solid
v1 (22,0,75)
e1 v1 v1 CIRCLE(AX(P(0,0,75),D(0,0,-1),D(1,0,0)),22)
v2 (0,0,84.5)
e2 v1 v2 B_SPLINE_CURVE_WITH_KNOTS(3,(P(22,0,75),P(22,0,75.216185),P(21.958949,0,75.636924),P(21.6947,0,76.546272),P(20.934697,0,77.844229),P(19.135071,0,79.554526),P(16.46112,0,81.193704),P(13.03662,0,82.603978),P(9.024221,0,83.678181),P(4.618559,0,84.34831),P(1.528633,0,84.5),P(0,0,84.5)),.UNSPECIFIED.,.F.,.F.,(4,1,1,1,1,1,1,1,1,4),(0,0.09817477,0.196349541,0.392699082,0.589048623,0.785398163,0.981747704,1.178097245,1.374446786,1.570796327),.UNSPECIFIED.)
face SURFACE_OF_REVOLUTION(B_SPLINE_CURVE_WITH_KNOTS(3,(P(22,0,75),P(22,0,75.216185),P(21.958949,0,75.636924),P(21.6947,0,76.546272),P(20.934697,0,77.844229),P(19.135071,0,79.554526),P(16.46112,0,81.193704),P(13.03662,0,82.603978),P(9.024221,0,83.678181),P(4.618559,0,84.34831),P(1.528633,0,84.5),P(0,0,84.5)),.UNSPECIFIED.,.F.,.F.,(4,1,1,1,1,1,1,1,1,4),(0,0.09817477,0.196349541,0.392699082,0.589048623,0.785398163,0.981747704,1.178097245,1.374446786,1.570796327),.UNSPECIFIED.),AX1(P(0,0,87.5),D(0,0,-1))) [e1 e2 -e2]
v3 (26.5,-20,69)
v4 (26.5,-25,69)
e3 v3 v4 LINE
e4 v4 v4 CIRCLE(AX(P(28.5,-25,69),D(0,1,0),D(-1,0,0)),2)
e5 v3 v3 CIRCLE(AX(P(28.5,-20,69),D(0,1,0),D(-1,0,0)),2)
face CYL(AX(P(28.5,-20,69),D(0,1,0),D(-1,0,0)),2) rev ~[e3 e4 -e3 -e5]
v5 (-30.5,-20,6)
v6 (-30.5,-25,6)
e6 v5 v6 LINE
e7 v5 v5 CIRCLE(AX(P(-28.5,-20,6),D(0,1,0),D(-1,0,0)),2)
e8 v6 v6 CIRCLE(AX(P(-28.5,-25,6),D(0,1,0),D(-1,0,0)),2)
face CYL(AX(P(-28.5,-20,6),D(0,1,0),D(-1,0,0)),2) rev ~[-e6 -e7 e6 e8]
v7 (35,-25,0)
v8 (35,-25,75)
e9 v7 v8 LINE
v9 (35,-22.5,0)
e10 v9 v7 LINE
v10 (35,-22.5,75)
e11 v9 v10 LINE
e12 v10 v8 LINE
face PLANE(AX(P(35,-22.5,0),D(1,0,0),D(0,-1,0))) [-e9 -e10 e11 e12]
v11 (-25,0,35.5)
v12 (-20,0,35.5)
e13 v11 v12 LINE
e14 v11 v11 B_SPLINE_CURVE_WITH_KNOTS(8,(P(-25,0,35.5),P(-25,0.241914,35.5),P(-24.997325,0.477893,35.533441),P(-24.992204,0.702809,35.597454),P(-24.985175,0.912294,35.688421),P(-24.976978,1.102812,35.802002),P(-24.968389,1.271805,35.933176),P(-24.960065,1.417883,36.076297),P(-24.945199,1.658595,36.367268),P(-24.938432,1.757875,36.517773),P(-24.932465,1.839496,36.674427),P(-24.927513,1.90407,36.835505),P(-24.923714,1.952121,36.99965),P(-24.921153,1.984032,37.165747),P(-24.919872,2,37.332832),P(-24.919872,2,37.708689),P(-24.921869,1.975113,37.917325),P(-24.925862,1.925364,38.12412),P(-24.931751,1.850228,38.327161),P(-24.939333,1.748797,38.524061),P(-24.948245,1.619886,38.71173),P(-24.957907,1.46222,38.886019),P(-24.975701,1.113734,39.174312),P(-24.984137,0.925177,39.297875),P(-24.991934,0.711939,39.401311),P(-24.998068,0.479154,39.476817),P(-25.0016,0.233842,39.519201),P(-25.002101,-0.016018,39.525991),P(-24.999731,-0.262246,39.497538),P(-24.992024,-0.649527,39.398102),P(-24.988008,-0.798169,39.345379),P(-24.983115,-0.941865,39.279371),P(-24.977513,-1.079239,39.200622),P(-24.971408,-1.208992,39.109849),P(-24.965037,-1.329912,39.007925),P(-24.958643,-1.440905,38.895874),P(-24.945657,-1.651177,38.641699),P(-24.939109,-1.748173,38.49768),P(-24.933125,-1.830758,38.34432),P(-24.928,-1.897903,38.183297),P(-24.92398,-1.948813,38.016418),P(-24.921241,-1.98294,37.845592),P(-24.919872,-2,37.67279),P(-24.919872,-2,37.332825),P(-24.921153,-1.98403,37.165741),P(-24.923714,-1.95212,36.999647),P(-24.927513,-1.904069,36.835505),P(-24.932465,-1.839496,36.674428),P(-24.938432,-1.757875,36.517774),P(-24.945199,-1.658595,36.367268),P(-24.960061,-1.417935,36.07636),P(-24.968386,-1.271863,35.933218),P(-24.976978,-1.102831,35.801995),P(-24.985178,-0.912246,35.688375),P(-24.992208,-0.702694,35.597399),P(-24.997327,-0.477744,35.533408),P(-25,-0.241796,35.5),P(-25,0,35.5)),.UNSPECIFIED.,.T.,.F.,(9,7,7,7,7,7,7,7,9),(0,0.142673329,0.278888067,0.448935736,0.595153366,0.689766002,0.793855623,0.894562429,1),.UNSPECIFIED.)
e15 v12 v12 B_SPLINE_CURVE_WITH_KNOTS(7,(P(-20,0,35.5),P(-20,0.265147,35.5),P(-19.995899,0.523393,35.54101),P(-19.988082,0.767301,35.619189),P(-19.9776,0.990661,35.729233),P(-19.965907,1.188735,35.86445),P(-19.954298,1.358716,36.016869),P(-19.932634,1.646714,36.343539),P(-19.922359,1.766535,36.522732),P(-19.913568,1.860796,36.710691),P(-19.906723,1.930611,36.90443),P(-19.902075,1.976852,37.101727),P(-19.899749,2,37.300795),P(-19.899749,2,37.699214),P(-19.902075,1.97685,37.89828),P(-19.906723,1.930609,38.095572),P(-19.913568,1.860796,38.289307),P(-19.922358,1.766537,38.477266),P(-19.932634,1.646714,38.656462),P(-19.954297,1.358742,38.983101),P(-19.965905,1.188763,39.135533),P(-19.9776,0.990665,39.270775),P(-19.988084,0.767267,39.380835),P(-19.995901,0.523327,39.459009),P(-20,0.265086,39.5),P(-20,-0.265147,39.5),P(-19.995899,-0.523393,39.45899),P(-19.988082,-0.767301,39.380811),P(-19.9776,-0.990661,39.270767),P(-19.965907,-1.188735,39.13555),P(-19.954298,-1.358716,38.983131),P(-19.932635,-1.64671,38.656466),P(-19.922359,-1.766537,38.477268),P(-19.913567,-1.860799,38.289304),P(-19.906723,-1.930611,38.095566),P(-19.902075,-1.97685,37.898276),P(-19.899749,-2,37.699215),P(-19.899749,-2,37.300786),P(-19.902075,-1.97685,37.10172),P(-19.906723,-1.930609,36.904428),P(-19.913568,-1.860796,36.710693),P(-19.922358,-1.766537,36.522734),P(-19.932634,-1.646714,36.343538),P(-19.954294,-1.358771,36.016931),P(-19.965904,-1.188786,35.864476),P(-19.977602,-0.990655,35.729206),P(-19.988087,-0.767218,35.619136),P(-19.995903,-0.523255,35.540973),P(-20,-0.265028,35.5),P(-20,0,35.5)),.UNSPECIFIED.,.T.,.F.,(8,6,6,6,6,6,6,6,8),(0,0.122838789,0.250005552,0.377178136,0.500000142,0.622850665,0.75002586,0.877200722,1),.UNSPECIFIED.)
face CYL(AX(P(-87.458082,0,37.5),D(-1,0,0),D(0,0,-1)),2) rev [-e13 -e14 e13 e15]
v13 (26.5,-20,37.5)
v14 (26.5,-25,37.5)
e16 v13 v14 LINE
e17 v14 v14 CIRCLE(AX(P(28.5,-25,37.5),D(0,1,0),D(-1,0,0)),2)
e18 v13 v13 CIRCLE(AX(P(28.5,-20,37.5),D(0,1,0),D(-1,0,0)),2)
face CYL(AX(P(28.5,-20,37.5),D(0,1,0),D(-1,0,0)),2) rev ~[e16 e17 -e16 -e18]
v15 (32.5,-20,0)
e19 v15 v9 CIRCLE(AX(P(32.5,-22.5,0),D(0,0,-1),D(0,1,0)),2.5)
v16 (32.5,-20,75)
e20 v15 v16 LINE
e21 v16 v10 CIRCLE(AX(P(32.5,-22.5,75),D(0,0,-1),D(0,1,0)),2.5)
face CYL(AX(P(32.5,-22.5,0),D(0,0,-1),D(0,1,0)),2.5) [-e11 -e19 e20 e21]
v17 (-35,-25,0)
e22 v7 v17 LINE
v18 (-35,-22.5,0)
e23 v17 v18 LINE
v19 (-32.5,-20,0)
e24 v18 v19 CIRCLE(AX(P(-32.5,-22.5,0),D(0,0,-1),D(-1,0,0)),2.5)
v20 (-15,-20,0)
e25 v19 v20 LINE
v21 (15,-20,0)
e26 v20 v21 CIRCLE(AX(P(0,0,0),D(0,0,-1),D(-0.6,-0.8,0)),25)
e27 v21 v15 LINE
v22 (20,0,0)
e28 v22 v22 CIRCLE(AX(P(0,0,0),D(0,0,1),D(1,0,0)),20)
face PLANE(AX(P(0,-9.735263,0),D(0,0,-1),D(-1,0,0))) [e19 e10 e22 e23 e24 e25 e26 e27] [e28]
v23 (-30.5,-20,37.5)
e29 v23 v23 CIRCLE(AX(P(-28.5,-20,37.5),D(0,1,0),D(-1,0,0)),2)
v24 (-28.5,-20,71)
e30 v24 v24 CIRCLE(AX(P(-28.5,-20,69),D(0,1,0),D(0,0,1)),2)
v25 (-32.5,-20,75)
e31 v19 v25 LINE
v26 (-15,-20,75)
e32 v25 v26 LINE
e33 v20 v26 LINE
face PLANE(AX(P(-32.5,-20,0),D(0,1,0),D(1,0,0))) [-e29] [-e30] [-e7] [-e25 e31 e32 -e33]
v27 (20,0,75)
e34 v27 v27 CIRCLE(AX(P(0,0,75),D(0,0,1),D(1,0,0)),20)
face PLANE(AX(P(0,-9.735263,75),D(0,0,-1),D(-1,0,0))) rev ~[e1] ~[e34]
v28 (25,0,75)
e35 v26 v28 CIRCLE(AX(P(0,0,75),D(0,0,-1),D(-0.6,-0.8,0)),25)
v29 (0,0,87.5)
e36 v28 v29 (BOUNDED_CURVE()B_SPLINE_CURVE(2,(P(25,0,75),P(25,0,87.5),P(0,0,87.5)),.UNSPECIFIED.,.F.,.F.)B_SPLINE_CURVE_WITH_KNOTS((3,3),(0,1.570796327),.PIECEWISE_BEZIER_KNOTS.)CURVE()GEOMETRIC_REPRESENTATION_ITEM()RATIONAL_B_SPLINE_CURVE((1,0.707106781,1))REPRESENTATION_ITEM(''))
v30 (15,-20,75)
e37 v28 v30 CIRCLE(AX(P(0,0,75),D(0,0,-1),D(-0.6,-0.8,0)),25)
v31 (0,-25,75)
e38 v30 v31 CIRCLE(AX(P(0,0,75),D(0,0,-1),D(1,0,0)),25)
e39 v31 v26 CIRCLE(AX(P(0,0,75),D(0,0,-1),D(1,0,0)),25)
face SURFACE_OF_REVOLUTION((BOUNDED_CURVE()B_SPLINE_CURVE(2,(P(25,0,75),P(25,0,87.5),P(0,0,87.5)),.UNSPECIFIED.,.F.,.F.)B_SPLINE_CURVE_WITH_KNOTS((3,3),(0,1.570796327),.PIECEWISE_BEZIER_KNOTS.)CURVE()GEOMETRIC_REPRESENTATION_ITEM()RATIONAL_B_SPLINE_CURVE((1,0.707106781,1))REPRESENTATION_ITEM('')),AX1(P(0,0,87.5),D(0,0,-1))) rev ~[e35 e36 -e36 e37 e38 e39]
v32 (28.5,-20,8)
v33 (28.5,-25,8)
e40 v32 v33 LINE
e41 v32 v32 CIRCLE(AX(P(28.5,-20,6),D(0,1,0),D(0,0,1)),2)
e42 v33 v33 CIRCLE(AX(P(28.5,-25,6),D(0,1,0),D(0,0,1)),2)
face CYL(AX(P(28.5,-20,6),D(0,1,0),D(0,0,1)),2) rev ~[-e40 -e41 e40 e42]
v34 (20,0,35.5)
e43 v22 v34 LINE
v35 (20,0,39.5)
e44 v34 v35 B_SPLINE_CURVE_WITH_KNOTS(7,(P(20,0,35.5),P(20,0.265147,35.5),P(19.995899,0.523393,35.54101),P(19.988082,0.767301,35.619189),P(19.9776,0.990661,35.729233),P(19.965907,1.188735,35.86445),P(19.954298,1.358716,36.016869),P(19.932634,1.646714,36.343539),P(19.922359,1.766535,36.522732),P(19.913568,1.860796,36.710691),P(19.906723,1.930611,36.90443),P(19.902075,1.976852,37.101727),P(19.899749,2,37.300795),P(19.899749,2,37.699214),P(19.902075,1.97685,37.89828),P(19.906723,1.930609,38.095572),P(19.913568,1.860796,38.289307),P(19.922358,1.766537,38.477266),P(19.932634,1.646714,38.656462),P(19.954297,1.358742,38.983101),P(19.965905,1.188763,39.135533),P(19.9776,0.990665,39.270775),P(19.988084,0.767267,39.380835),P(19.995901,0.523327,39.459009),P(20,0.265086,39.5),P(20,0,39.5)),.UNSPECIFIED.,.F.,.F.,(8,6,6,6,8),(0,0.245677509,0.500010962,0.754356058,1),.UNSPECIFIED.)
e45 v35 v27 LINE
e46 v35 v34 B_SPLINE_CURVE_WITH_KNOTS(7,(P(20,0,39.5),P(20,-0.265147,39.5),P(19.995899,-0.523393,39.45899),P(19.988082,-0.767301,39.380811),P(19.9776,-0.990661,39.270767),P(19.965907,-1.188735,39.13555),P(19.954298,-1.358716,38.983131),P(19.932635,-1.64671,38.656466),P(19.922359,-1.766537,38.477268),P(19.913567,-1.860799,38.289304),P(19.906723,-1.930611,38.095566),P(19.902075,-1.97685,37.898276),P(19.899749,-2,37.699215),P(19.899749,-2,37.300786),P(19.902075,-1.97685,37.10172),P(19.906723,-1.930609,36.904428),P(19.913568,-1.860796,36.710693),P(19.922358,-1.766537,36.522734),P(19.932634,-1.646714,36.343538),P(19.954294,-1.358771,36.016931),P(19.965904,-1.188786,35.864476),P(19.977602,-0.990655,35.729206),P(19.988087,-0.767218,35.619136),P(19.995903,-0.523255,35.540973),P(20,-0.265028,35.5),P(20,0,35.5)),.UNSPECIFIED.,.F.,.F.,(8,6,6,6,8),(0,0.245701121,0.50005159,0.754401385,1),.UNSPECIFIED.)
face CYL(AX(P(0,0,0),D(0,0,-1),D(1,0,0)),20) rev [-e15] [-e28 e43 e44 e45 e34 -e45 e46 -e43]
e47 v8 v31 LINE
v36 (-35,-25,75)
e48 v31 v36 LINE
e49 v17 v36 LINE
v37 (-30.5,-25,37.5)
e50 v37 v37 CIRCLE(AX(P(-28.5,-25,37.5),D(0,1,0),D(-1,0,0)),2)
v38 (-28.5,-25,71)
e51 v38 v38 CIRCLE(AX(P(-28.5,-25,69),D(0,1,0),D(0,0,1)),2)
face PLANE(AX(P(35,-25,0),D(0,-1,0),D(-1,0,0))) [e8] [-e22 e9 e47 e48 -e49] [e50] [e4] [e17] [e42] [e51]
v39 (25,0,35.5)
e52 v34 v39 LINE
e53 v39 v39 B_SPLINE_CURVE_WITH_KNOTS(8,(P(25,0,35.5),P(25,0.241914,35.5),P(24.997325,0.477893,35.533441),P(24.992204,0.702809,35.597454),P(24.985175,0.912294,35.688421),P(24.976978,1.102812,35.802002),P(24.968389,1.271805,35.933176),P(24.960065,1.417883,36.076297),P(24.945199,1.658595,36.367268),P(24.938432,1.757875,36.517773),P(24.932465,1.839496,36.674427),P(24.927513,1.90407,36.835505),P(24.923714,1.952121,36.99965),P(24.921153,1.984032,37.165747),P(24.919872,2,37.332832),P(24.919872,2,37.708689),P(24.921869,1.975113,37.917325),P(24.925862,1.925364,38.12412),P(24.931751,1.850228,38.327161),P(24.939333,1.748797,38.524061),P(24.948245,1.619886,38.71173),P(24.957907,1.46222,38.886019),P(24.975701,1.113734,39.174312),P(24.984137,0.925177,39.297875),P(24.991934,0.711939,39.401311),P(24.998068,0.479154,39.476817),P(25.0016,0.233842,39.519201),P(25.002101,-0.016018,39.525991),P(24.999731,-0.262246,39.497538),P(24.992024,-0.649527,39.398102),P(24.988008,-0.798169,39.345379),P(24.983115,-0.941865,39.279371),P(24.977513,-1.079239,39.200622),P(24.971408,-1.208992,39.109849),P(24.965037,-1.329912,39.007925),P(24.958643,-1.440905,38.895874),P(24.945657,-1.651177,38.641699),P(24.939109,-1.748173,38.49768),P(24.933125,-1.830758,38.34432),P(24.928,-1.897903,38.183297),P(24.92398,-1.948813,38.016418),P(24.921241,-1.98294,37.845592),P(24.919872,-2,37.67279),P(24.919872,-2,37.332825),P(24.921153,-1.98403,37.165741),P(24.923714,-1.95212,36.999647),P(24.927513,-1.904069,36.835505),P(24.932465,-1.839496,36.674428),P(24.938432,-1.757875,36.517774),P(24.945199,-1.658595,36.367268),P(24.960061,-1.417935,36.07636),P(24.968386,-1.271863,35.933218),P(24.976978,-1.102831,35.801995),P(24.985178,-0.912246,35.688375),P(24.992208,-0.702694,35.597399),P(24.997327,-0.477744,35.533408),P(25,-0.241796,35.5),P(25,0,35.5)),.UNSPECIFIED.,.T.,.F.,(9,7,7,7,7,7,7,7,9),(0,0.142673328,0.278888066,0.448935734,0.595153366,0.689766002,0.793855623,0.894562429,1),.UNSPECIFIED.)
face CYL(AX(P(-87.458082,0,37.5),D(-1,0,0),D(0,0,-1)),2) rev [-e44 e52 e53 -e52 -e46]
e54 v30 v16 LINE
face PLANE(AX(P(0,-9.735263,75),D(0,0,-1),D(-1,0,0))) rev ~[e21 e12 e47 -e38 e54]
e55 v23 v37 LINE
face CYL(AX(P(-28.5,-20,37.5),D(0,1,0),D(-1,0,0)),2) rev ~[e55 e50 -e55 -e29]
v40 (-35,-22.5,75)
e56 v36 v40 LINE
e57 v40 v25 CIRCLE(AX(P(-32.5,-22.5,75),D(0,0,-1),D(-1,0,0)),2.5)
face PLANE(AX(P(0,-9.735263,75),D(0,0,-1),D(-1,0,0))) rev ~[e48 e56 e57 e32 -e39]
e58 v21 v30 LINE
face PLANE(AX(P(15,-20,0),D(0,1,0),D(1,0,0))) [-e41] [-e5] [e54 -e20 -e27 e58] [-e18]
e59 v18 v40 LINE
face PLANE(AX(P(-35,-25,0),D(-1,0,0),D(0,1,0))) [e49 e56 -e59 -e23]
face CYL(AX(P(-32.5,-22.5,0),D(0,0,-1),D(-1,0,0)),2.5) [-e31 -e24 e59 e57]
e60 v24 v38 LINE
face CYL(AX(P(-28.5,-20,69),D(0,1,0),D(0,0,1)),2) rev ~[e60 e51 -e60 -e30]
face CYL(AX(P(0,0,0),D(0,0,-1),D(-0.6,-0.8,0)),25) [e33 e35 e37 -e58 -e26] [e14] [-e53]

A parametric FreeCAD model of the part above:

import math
import FreeCAD as App
import Part
import Sketcher
from FreeCAD import Vector
Q = App.Units.Quantity

doc = App.newDocument("Part")
body = doc.addObject("PartDesign::Body", "Body")

sketch1 = body.newObject("Sketcher::SketchObject", "Sketch")
sketch1.AttachmentSupport = (doc.getObject("XY_Plane"), [""])
sketch1.MapMode = "FlatFace"
sketch1.addGeometry(Part.LineSegment(Vector(-15, -20, 0), Vector(-32.5, -20, 0)), False)
sketch1.addGeometry(Part.ArcOfCircle(Part.Circle(Vector(-32.5, -22.5, 0), Vector(0, 0, 1), 2.5), math.radians(90), math.radians(180)), False)
sketch1.addGeometry(Part.LineSegment(Vector(-35, -22.5, 0), Vector(-35, -25, 0)), False)
sketch1.addGeometry(Part.LineSegment(Vector(-35, -25, 0), Vector(35, -25, 0)), False)
sketch1.addGeometry(Part.LineSegment(Vector(35, -25, 0), Vector(35, -22.5, 0)), False)
sketch1.addGeometry(Part.ArcOfCircle(Part.Circle(Vector(32.5, -22.5, 0), Vector(0, 0, 1), 2.5), math.radians(0), math.radians(90)), False)
sketch1.addGeometry(Part.LineSegment(Vector(32.5, -20, 0), Vector(15, -20, 0)), False)
sketch1.addGeometry(Part.ArcOfCircle(Part.Circle(Vector(0, 0, 0), Vector(0, 0, 1), 25), math.radians(-53.130102), math.radians(233.130102)), False)
sketch1.addGeometry(Part.Circle(Vector(0, 0, 0), Vector(0, 0, 1), 20), False)
sketch1.addConstraint(Sketcher.Constraint("Tangent", 0, 2, 1, 1))
sketch1.addConstraint(Sketcher.Constraint("Tangent", 1, 2, 2, 1))
sketch1.addConstraint(Sketcher.Constraint("Coincident", 2, 2, 3, 1))
sketch1.addConstraint(Sketcher.Constraint("Coincident", 3, 2, 4, 1))
sketch1.addConstraint(Sketcher.Constraint("Tangent", 4, 2, 5, 1))
sketch1.addConstraint(Sketcher.Constraint("Tangent", 5, 2, 6, 1))
sketch1.addConstraint(Sketcher.Constraint("Coincident", 6, 2, 7, 1))
sketch1.addConstraint(Sketcher.Constraint("Coincident", 7, 2, 0, 1))
sketch1.addConstraint(Sketcher.Constraint("Horizontal", 0))
sketch1.addConstraint(Sketcher.Constraint("Vertical", 2))
sketch1.addConstraint(Sketcher.Constraint("Horizontal", 3))
sketch1.addConstraint(Sketcher.Constraint("Vertical", 4))
sketch1.addConstraint(Sketcher.Constraint("Horizontal", 6))
sketch1.addConstraint(Sketcher.Constraint("Coincident", 7, 3, -1, 1))
sketch1.addConstraint(Sketcher.Constraint("Coincident", 8, 3, -1, 1))
sketch1.addConstraint(Sketcher.Constraint("Equal", 1, 5))
sketch1.addConstraint(Sketcher.Constraint("Symmetric", 1, 3, 5, 3, -2))
sketch1.addConstraint(Sketcher.Constraint("Diameter", 8, Q("40 mm")))
sketch1.addConstraint(Sketcher.Constraint("Radius", 7, Q("25 mm")))
sketch1.addConstraint(Sketcher.Constraint("Radius", 1, Q("2.5 mm")))
sketch1.addConstraint(Sketcher.Constraint("DistanceX", 3, 1, 3, 2, Q("70 mm")))
sketch1.addConstraint(Sketcher.Constraint("DistanceX", 0, 2, 0, 1, Q("17.5 mm")))
sketch1.addConstraint(Sketcher.Constraint("DistanceY", 2, 2, 2, 1, Q("2.5 mm")))
pad1 = body.newObject("PartDesign::Pad", "Pad")
pad1.Profile = sketch1
pad1.Length = 75

sketch2 = body.newObject("Sketcher::SketchObject", "Sketch001")
sketch2.AttachmentSupport = (doc.getObject("YZ_Plane"), [""])
sketch2.MapMode = "FlatFace"
sketch2.addGeometry(Part.Circle(Vector(0, 37.5, 0), Vector(0, 0, 1), 2), False)
sketch2.addConstraint(Sketcher.Constraint("PointOnObject", 0, 3, -2))
sketch2.addConstraint(Sketcher.Constraint("Diameter", 0, Q("4 mm")))
sketch2.addConstraint(Sketcher.Constraint("DistanceY", -1, 1, 0, 3, Q("37.5 mm")))
pocket1 = body.newObject("PartDesign::Pocket", "Pocket")
pocket1.Profile = sketch2
pocket1.Type = "ThroughAll"
pocket1.Midplane = True

sketch3 = body.newObject("Sketcher::SketchObject", "Sketch002")
sketch3.AttachmentSupport = (doc.getObject("YZ_Plane"), [""])
sketch3.MapMode = "FlatFace"
sketch3.addGeometry(Part.LineSegment(Vector(0, 87.5, 0), Vector(0, 84.5, 0)), False)
sketch3.addGeometry(Part.BSplineCurve([Vector(22, 75, 0), Vector(22, 75.216185, 0), Vector(21.958949, 75.636924, 0), Vector(21.6947, 76.546272, 0), Vector(20.934697, 77.844229, 0), Vector(19.135071, 79.554526, 0), Vector(16.46112, 81.193704, 0), Vector(13.03662, 82.603978, 0), Vector(9.024221, 83.678181, 0), Vector(4.618559, 84.34831, 0), Vector(1.528633, 84.5, 0), Vector(0, 84.5, 0)], [4, 1, 1, 1, 1, 1, 1, 1, 1, 4], [0, 0.09817477, 0.196349541, 0.392699082, 0.589048623, 0.785398163, 0.981747704, 1.178097245, 1.374446786, 1.570796327], False, 3, [1, 1, 1, 1, 1, 1, 1, 1, 1, 1, 1, 1], False), False)
sketch3.addGeometry(Part.LineSegment(Vector(22, 75, 0), Vector(25, 75, 0)), False)
sketch3.addGeometry(Part.BSplineCurve([Vector(25, 75, 0), Vector(25, 87.5, 0), Vector(0, 87.5, 0)], [3, 3], [0, 1.570796327], False, 2, [1, 0.707106781, 1], False), False)
sketch3.addConstraint(Sketcher.Constraint("Block", 1))
sketch3.addConstraint(Sketcher.Constraint("Block", 3))
sketch3.addConstraint(Sketcher.Constraint("Coincident", 0, 2, 1, 2))
sketch3.addConstraint(Sketcher.Constraint("Coincident", 1, 1, 2, 1))
sketch3.addConstraint(Sketcher.Constraint("Coincident", 2, 2, 3, 1))
sketch3.addConstraint(Sketcher.Constraint("Coincident", 3, 2, 0, 1))
revolution = body.newObject("PartDesign::Revolution", "Revolution")
revolution.Profile = sketch3
revolution.ReferenceAxis = (sketch3, ["V_Axis"])
revolution.Angle = 360

sketch4 = body.newObject("Sketcher::SketchObject", "Sketch003")
sketch4.AttachmentSupport = (doc.getObject("XZ_Plane"), [""])
sketch4.MapMode = "FlatFace"
sketch4.AttachmentOffset = App.Placement(Vector(0, 0, 20), App.Rotation())
sketch4.addGeometry(Part.Circle(Vector(28.5, 69, 0), Vector(0, 0, 1), 2), False)
sketch4.addConstraint(Sketcher.Constraint("Diameter", 0, Q("4 mm")))
sketch4.addConstraint(Sketcher.Constraint("DistanceY", -1, 1, 0, 3, Q("69 mm")))
sketch4.addConstraint(Sketcher.Constraint("DistanceX", -1, 1, 0, 3, Q("28.5 mm")))
pocket2 = body.newObject("PartDesign::Pocket", "Pocket001")
pocket2.Profile = sketch4
pocket2.Length = 10
pocket2.Reversed = True

sketch5 = body.newObject("Sketcher::SketchObject", "Sketch004")
sketch5.AttachmentSupport = (doc.getObject("XZ_Plane"), [""])
sketch5.MapMode = "FlatFace"
sketch5.AttachmentOffset = App.Placement(Vector(0, 0, 20), App.Rotation())
sketch5.addGeometry(Part.Circle(Vector(-28.5, 37.5, 0), Vector(0, 0, 1), 2), False)
sketch5.addGeometry(Part.Circle(Vector(-28.5, 6, 0), Vector(0, 0, 1), 2), False)
sketch5.addGeometry(Part.Circle(Vector(-28.5, 69, 0), Vector(0, 0, 1), 2), False)
sketch5.addGeometry(Part.Circle(Vector(28.5, 6, 0), Vector(0, 0, 1), 2), False)
sketch5.addGeometry(Part.Circle(Vector(28.5, 37.5, 0), Vector(0, 0, 1), 2), False)
sketch5.addConstraint(Sketcher.Constraint("Equal", 0, 1))
sketch5.addConstraint(Sketcher.Constraint("Equal", 1, 2))
sketch5.addConstraint(Sketcher.Constraint("Equal", 2, 3))
sketch5.addConstraint(Sketcher.Constraint("Equal", 3, 4))
sketch5.addConstraint(Sketcher.Constraint("Symmetric", 1, 3, 3, 3, -2))
sketch5.addConstraint(Sketcher.Constraint("Symmetric", 0, 3, 4, 3, -2))
sketch5.addConstraint(Sketcher.Constraint("Vertical", 0, 3, 1, 3))
sketch5.addConstraint(Sketcher.Constraint("Vertical", 1, 3, 2, 3))
sketch5.addConstraint(Sketcher.Constraint("Diameter", 0, Q("4 mm")))
sketch5.addConstraint(Sketcher.Constraint("DistanceY", -1, 1, 1, 3, Q("6 mm")))
sketch5.addConstraint(Sketcher.Constraint("DistanceY", -1, 1, 2, 3, Q("69 mm")))
sketch5.addConstraint(Sketcher.Constraint("DistanceX", 1, 3, 3, 3, Q("57 mm")))
sketch5.addConstraint(Sketcher.Constraint("DistanceY", -1, 1, 0, 3, Q("37.5 mm")))
pocket3 = body.newObject("PartDesign::Pocket", "Pocket002")
pocket3.Profile = sketch5
pocket3.Length = 10
pocket3.Reversed = True

doc.recompute()
